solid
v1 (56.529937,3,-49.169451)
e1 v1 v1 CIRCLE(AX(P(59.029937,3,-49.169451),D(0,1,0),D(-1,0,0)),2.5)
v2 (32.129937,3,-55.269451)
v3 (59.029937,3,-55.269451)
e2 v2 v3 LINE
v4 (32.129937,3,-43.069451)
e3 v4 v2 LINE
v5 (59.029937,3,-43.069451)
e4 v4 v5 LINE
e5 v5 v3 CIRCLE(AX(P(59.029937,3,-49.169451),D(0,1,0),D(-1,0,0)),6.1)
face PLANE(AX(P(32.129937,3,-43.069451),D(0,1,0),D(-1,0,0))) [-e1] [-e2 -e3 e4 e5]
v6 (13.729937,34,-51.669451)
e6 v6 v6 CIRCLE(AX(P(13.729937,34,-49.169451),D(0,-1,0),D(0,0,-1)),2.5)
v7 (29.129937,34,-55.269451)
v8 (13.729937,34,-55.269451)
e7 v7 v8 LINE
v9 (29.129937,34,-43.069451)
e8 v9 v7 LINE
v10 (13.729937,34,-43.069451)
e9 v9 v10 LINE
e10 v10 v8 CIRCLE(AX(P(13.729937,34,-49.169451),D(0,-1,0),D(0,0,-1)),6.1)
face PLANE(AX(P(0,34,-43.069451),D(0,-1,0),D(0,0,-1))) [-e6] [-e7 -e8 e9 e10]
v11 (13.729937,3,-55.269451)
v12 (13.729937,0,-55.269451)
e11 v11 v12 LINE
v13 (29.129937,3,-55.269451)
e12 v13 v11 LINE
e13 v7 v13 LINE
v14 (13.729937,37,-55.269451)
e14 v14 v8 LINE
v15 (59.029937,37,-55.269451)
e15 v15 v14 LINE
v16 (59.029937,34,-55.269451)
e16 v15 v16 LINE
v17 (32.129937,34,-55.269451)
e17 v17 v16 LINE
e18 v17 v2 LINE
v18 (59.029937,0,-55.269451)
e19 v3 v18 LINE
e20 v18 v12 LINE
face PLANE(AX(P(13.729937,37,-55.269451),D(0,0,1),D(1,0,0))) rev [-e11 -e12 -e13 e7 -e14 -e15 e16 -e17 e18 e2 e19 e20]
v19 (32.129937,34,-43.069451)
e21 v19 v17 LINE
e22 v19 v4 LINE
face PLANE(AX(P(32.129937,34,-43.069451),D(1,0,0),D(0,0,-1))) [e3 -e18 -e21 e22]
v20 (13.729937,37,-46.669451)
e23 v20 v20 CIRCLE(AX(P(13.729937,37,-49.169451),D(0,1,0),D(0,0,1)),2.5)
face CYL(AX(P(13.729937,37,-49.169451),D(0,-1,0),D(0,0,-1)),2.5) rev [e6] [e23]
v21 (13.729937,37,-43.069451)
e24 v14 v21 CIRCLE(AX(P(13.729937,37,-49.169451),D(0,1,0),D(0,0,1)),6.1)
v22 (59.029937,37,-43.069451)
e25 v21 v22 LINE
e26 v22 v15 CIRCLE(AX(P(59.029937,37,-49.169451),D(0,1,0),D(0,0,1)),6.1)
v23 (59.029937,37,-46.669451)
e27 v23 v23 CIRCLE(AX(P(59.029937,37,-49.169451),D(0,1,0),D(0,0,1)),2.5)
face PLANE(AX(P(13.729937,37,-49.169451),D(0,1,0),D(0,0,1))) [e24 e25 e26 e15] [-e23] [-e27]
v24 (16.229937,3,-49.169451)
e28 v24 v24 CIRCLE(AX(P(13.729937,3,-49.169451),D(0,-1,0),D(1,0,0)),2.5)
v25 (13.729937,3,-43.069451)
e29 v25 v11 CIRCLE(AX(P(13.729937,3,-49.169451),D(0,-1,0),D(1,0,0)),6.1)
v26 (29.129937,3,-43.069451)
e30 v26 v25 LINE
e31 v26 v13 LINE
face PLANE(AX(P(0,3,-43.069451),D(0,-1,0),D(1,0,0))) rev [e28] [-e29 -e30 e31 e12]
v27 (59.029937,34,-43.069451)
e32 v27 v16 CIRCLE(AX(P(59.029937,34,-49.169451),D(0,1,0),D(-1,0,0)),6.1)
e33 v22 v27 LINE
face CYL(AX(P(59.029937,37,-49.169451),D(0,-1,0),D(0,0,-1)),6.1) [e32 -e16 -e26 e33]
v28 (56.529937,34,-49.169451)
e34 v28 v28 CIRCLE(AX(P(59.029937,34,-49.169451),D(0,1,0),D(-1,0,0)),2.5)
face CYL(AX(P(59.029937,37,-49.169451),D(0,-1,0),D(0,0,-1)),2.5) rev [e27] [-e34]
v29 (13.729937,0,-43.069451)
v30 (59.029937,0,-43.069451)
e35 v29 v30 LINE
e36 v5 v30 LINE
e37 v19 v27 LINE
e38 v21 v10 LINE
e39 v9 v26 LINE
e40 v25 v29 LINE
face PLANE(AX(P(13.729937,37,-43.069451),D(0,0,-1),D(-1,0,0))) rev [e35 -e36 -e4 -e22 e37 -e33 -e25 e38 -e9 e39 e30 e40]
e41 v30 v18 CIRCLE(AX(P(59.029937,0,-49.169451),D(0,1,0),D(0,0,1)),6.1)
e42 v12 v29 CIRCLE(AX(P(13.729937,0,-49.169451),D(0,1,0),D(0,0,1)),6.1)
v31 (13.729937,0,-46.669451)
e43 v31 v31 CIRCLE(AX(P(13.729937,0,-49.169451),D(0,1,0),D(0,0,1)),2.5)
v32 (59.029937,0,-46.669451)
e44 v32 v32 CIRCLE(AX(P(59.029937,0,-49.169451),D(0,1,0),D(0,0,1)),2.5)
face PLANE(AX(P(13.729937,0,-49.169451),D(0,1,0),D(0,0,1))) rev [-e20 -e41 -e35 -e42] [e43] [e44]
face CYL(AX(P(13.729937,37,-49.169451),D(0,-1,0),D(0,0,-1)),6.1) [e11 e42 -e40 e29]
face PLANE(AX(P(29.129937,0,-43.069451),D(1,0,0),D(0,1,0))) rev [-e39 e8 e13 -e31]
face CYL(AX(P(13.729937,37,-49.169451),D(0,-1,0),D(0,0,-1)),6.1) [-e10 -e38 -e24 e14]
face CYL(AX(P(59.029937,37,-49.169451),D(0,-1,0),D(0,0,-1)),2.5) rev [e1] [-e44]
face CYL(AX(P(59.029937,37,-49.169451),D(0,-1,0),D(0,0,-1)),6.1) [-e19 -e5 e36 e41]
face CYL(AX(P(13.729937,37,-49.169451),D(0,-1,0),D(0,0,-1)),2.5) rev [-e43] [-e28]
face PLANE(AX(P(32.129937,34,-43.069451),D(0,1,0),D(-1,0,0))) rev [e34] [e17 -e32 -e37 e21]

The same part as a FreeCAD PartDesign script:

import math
import FreeCAD as App
import Part
import Sketcher
from FreeCAD import Vector

doc = App.newDocument("Part")
params = doc.addObject("Spreadsheet::Sheet", "Params")
for row, (alias, value) in enumerate([
    ("sketch1_diameter", "5 mm"),
    ("sketch1_radius", "6.1 mm"),
    ("sketch1_width", "45.3 mm"),
    ("pad1_length", "37 mm"),
    ("sketch2_height", "31 mm"),
], start=1):
    params.set(f"A{row}", alias)
    params.set(f"B{row}", "=" + value)
    params.setAlias(f"B{row}", alias)

body = doc.addObject("PartDesign::Body", "Body")

# Sketch on XZ plane
sketch1 = body.newObject("Sketcher::SketchObject", "Sketch")
sketch1.AttachmentSupport = (doc.getObject("XZ_Plane"), [""])
sketch1.MapMode = "FlatFace"
sketch1.addGeometry(Part.LineSegment(Vector(59, -55.3, 0), Vector(13.7, -55.3, 0)), False)
sketch1.addGeometry(Part.ArcOfCircle(Part.Circle(Vector(13.7, -49.2, 0), Vector(0, 0, 1), 6.1), math.radians(90), math.radians(270)), False)
sketch1.addGeometry(Part.LineSegment(Vector(13.7, -43.1, 0), Vector(59, -43.1, 0)), False)
sketch1.addGeometry(Part.ArcOfCircle(Part.Circle(Vector(59, -49.2, 0), Vector(0, 0, 1), 6.1), math.radians(-90), math.radians(90)), False)
sketch1.addGeometry(Part.Circle(Vector(59, -49.2, 0), Vector(0, 0, 1), 2.5), False)
sketch1.addGeometry(Part.Circle(Vector(13.7, -49.2, 0), Vector(0, 0, 1), 2.5), False)
sketch1.addConstraint(Sketcher.Constraint("Tangent", 0, 2, 1, 2))
sketch1.addConstraint(Sketcher.Constraint("Tangent", 1, 1, 2, 1))
sketch1.addConstraint(Sketcher.Constraint("Tangent", 2, 2, 3, 2))
sketch1.addConstraint(Sketcher.Constraint("Tangent", 3, 1, 0, 1))
sketch1.addConstraint(Sketcher.Constraint("Horizontal", 0))
sketch1.addConstraint(Sketcher.Constraint("Horizontal", 2))
sketch1.addConstraint(Sketcher.Constraint("Coincident", 4, 3, 3, 3))
sketch1.addConstraint(Sketcher.Constraint("Coincident", 5, 3, 1, 3))
sketch1.addConstraint(Sketcher.Constraint("Equal", 4, 5))
sketch1.addConstraint(Sketcher.Constraint("Diameter", 4, 5.0))
sketch1.addConstraint(Sketcher.Constraint("Radius", 1, 6.1))
sketch1.addConstraint(Sketcher.Constraint("DistanceX", 0, 2, 0, 1, 45.3))
sketch1.addConstraint(Sketcher.Constraint("DistanceY", 1, 3, -1, 1, 49.169451))
sketch1.addConstraint(Sketcher.Constraint("DistanceX", -1, 1, 1, 3, 13.729937))
sketch1.setExpression("Constraints[9]", "Params.sketch1_diameter")
sketch1.setExpression("Constraints[10]", "Params.sketch1_radius")
sketch1.setExpression("Constraints[11]", "Params.sketch1_width")
pad1 = body.newObject("PartDesign::Pad", "Pad")
pad1.Profile = sketch1
pad1.setExpression("Length", "Params.pad1_length")
pad1.Reversed = True

# Sketch on XY plane
sketch2 = body.newObject("Sketcher::SketchObject", "Sketch001")
sketch2.AttachmentSupport = (doc.getObject("XY_Plane"), [""])
sketch2.MapMode = "FlatFace"
sketch2.AttachmentOffset = App.Placement(Vector(0, 0, -55.269451), App.Rotation())
sketch2.addGeometry(Part.LineSegment(Vector(29, 34, 0), Vector(29, 3, 0)), False)
sketch2.addGeometry(Part.LineSegment(Vector(29, 3, 0), Vector(6, 3, 0)), False)
sketch2.addGeometry(Part.LineSegment(Vector(6, 3, 0), Vector(6, 34, 0)), False)
sketch2.addGeometry(Part.LineSegment(Vector(6, 34, 0), Vector(29, 34, 0)), False)
sketch2.addGeometry(Part.LineSegment(Vector(68, 34, 0), Vector(68, 3, 0)), False)
sketch2.addGeometry(Part.LineSegment(Vector(68, 3, 0), Vector(32, 3, 0)), False)
sketch2.addGeometry(Part.LineSegment(Vector(32, 3, 0), Vector(32, 34, 0)), False)
sketch2.addGeometry(Part.LineSegment(Vector(32, 34, 0), Vector(68, 34, 0)), False)
sketch2.addConstraint(Sketcher.Constraint("Coincident", 0, 2, 1, 1))
sketch2.addConstraint(Sketcher.Constraint("Coincident", 1, 2, 2, 1))
sketch2.addConstraint(Sketcher.Constraint("Coincident", 2, 2, 3, 1))
sketch2.addConstraint(Sketcher.Constraint("Coincident", 3, 2, 0, 1))
sketch2.addConstraint(Sketcher.Constraint("Coincident", 4, 2, 5, 1))
sketch2.addConstraint(Sketcher.Constraint("Coincident", 5, 2, 6, 1))
sketch2.addConstraint(Sketcher.Constraint("Coincident", 6, 2, 7, 1))
sketch2.addConstraint(Sketcher.Constraint("Coincident", 7, 2, 4, 1))
sketch2.addConstraint(Sketcher.Constraint("Vertical", 0))
sketch2.addConstraint(Sketcher.Constraint("Horizontal", 1))
sketch2.addConstraint(Sketcher.Constraint("Vertical", 2))
sketch2.addConstraint(Sketcher.Constraint("Horizontal", 3))
sketch2.addConstraint(Sketcher.Constraint("Vertical", 4))
sketch2.addConstraint(Sketcher.Constraint("Horizontal", 5))
sketch2.addConstraint(Sketcher.Constraint("Vertical", 6))
sketch2.addConstraint(Sketcher.Constraint("Horizontal", 7))
sketch2.addConstraint(Sketcher.Constraint("Horizontal", 1, 2, 4, 2))
sketch2.addConstraint(Sketcher.Constraint("Horizontal", 3, 2, 6, 2))
sketch2.addConstraint(Sketcher.Constraint("DistanceY", 0, 2, 0, 1, 31.0))
sketch2.addConstraint(Sketcher.Constraint("DistanceY", -1, 1, 0, 2, 3.0))
sketch2.addConstraint(Sketcher.Constraint("DistanceX", 0, 2, 5, 2, 3.0))
sketch2.addConstraint(Sketcher.Constraint("DistanceX", 1, 2, 1, 1, 23.410366))
sketch2.addConstraint(Sketcher.Constraint("DistanceX", 5, 2, 5, 1, 36.155805))
sketch2.addConstraint(Sketcher.Constraint("DistanceX", -1, 1, 1, 2, 5.719571))
sketch2.setExpression("Constraints[18]", "Params.sketch2_height")
pocket1 = body.newObject("PartDesign::Pocket", "Pocket")
pocket1.Profile = sketch2
pocket1.Type = "ThroughAll"
pocket1.Reversed = True

doc.recompute()
